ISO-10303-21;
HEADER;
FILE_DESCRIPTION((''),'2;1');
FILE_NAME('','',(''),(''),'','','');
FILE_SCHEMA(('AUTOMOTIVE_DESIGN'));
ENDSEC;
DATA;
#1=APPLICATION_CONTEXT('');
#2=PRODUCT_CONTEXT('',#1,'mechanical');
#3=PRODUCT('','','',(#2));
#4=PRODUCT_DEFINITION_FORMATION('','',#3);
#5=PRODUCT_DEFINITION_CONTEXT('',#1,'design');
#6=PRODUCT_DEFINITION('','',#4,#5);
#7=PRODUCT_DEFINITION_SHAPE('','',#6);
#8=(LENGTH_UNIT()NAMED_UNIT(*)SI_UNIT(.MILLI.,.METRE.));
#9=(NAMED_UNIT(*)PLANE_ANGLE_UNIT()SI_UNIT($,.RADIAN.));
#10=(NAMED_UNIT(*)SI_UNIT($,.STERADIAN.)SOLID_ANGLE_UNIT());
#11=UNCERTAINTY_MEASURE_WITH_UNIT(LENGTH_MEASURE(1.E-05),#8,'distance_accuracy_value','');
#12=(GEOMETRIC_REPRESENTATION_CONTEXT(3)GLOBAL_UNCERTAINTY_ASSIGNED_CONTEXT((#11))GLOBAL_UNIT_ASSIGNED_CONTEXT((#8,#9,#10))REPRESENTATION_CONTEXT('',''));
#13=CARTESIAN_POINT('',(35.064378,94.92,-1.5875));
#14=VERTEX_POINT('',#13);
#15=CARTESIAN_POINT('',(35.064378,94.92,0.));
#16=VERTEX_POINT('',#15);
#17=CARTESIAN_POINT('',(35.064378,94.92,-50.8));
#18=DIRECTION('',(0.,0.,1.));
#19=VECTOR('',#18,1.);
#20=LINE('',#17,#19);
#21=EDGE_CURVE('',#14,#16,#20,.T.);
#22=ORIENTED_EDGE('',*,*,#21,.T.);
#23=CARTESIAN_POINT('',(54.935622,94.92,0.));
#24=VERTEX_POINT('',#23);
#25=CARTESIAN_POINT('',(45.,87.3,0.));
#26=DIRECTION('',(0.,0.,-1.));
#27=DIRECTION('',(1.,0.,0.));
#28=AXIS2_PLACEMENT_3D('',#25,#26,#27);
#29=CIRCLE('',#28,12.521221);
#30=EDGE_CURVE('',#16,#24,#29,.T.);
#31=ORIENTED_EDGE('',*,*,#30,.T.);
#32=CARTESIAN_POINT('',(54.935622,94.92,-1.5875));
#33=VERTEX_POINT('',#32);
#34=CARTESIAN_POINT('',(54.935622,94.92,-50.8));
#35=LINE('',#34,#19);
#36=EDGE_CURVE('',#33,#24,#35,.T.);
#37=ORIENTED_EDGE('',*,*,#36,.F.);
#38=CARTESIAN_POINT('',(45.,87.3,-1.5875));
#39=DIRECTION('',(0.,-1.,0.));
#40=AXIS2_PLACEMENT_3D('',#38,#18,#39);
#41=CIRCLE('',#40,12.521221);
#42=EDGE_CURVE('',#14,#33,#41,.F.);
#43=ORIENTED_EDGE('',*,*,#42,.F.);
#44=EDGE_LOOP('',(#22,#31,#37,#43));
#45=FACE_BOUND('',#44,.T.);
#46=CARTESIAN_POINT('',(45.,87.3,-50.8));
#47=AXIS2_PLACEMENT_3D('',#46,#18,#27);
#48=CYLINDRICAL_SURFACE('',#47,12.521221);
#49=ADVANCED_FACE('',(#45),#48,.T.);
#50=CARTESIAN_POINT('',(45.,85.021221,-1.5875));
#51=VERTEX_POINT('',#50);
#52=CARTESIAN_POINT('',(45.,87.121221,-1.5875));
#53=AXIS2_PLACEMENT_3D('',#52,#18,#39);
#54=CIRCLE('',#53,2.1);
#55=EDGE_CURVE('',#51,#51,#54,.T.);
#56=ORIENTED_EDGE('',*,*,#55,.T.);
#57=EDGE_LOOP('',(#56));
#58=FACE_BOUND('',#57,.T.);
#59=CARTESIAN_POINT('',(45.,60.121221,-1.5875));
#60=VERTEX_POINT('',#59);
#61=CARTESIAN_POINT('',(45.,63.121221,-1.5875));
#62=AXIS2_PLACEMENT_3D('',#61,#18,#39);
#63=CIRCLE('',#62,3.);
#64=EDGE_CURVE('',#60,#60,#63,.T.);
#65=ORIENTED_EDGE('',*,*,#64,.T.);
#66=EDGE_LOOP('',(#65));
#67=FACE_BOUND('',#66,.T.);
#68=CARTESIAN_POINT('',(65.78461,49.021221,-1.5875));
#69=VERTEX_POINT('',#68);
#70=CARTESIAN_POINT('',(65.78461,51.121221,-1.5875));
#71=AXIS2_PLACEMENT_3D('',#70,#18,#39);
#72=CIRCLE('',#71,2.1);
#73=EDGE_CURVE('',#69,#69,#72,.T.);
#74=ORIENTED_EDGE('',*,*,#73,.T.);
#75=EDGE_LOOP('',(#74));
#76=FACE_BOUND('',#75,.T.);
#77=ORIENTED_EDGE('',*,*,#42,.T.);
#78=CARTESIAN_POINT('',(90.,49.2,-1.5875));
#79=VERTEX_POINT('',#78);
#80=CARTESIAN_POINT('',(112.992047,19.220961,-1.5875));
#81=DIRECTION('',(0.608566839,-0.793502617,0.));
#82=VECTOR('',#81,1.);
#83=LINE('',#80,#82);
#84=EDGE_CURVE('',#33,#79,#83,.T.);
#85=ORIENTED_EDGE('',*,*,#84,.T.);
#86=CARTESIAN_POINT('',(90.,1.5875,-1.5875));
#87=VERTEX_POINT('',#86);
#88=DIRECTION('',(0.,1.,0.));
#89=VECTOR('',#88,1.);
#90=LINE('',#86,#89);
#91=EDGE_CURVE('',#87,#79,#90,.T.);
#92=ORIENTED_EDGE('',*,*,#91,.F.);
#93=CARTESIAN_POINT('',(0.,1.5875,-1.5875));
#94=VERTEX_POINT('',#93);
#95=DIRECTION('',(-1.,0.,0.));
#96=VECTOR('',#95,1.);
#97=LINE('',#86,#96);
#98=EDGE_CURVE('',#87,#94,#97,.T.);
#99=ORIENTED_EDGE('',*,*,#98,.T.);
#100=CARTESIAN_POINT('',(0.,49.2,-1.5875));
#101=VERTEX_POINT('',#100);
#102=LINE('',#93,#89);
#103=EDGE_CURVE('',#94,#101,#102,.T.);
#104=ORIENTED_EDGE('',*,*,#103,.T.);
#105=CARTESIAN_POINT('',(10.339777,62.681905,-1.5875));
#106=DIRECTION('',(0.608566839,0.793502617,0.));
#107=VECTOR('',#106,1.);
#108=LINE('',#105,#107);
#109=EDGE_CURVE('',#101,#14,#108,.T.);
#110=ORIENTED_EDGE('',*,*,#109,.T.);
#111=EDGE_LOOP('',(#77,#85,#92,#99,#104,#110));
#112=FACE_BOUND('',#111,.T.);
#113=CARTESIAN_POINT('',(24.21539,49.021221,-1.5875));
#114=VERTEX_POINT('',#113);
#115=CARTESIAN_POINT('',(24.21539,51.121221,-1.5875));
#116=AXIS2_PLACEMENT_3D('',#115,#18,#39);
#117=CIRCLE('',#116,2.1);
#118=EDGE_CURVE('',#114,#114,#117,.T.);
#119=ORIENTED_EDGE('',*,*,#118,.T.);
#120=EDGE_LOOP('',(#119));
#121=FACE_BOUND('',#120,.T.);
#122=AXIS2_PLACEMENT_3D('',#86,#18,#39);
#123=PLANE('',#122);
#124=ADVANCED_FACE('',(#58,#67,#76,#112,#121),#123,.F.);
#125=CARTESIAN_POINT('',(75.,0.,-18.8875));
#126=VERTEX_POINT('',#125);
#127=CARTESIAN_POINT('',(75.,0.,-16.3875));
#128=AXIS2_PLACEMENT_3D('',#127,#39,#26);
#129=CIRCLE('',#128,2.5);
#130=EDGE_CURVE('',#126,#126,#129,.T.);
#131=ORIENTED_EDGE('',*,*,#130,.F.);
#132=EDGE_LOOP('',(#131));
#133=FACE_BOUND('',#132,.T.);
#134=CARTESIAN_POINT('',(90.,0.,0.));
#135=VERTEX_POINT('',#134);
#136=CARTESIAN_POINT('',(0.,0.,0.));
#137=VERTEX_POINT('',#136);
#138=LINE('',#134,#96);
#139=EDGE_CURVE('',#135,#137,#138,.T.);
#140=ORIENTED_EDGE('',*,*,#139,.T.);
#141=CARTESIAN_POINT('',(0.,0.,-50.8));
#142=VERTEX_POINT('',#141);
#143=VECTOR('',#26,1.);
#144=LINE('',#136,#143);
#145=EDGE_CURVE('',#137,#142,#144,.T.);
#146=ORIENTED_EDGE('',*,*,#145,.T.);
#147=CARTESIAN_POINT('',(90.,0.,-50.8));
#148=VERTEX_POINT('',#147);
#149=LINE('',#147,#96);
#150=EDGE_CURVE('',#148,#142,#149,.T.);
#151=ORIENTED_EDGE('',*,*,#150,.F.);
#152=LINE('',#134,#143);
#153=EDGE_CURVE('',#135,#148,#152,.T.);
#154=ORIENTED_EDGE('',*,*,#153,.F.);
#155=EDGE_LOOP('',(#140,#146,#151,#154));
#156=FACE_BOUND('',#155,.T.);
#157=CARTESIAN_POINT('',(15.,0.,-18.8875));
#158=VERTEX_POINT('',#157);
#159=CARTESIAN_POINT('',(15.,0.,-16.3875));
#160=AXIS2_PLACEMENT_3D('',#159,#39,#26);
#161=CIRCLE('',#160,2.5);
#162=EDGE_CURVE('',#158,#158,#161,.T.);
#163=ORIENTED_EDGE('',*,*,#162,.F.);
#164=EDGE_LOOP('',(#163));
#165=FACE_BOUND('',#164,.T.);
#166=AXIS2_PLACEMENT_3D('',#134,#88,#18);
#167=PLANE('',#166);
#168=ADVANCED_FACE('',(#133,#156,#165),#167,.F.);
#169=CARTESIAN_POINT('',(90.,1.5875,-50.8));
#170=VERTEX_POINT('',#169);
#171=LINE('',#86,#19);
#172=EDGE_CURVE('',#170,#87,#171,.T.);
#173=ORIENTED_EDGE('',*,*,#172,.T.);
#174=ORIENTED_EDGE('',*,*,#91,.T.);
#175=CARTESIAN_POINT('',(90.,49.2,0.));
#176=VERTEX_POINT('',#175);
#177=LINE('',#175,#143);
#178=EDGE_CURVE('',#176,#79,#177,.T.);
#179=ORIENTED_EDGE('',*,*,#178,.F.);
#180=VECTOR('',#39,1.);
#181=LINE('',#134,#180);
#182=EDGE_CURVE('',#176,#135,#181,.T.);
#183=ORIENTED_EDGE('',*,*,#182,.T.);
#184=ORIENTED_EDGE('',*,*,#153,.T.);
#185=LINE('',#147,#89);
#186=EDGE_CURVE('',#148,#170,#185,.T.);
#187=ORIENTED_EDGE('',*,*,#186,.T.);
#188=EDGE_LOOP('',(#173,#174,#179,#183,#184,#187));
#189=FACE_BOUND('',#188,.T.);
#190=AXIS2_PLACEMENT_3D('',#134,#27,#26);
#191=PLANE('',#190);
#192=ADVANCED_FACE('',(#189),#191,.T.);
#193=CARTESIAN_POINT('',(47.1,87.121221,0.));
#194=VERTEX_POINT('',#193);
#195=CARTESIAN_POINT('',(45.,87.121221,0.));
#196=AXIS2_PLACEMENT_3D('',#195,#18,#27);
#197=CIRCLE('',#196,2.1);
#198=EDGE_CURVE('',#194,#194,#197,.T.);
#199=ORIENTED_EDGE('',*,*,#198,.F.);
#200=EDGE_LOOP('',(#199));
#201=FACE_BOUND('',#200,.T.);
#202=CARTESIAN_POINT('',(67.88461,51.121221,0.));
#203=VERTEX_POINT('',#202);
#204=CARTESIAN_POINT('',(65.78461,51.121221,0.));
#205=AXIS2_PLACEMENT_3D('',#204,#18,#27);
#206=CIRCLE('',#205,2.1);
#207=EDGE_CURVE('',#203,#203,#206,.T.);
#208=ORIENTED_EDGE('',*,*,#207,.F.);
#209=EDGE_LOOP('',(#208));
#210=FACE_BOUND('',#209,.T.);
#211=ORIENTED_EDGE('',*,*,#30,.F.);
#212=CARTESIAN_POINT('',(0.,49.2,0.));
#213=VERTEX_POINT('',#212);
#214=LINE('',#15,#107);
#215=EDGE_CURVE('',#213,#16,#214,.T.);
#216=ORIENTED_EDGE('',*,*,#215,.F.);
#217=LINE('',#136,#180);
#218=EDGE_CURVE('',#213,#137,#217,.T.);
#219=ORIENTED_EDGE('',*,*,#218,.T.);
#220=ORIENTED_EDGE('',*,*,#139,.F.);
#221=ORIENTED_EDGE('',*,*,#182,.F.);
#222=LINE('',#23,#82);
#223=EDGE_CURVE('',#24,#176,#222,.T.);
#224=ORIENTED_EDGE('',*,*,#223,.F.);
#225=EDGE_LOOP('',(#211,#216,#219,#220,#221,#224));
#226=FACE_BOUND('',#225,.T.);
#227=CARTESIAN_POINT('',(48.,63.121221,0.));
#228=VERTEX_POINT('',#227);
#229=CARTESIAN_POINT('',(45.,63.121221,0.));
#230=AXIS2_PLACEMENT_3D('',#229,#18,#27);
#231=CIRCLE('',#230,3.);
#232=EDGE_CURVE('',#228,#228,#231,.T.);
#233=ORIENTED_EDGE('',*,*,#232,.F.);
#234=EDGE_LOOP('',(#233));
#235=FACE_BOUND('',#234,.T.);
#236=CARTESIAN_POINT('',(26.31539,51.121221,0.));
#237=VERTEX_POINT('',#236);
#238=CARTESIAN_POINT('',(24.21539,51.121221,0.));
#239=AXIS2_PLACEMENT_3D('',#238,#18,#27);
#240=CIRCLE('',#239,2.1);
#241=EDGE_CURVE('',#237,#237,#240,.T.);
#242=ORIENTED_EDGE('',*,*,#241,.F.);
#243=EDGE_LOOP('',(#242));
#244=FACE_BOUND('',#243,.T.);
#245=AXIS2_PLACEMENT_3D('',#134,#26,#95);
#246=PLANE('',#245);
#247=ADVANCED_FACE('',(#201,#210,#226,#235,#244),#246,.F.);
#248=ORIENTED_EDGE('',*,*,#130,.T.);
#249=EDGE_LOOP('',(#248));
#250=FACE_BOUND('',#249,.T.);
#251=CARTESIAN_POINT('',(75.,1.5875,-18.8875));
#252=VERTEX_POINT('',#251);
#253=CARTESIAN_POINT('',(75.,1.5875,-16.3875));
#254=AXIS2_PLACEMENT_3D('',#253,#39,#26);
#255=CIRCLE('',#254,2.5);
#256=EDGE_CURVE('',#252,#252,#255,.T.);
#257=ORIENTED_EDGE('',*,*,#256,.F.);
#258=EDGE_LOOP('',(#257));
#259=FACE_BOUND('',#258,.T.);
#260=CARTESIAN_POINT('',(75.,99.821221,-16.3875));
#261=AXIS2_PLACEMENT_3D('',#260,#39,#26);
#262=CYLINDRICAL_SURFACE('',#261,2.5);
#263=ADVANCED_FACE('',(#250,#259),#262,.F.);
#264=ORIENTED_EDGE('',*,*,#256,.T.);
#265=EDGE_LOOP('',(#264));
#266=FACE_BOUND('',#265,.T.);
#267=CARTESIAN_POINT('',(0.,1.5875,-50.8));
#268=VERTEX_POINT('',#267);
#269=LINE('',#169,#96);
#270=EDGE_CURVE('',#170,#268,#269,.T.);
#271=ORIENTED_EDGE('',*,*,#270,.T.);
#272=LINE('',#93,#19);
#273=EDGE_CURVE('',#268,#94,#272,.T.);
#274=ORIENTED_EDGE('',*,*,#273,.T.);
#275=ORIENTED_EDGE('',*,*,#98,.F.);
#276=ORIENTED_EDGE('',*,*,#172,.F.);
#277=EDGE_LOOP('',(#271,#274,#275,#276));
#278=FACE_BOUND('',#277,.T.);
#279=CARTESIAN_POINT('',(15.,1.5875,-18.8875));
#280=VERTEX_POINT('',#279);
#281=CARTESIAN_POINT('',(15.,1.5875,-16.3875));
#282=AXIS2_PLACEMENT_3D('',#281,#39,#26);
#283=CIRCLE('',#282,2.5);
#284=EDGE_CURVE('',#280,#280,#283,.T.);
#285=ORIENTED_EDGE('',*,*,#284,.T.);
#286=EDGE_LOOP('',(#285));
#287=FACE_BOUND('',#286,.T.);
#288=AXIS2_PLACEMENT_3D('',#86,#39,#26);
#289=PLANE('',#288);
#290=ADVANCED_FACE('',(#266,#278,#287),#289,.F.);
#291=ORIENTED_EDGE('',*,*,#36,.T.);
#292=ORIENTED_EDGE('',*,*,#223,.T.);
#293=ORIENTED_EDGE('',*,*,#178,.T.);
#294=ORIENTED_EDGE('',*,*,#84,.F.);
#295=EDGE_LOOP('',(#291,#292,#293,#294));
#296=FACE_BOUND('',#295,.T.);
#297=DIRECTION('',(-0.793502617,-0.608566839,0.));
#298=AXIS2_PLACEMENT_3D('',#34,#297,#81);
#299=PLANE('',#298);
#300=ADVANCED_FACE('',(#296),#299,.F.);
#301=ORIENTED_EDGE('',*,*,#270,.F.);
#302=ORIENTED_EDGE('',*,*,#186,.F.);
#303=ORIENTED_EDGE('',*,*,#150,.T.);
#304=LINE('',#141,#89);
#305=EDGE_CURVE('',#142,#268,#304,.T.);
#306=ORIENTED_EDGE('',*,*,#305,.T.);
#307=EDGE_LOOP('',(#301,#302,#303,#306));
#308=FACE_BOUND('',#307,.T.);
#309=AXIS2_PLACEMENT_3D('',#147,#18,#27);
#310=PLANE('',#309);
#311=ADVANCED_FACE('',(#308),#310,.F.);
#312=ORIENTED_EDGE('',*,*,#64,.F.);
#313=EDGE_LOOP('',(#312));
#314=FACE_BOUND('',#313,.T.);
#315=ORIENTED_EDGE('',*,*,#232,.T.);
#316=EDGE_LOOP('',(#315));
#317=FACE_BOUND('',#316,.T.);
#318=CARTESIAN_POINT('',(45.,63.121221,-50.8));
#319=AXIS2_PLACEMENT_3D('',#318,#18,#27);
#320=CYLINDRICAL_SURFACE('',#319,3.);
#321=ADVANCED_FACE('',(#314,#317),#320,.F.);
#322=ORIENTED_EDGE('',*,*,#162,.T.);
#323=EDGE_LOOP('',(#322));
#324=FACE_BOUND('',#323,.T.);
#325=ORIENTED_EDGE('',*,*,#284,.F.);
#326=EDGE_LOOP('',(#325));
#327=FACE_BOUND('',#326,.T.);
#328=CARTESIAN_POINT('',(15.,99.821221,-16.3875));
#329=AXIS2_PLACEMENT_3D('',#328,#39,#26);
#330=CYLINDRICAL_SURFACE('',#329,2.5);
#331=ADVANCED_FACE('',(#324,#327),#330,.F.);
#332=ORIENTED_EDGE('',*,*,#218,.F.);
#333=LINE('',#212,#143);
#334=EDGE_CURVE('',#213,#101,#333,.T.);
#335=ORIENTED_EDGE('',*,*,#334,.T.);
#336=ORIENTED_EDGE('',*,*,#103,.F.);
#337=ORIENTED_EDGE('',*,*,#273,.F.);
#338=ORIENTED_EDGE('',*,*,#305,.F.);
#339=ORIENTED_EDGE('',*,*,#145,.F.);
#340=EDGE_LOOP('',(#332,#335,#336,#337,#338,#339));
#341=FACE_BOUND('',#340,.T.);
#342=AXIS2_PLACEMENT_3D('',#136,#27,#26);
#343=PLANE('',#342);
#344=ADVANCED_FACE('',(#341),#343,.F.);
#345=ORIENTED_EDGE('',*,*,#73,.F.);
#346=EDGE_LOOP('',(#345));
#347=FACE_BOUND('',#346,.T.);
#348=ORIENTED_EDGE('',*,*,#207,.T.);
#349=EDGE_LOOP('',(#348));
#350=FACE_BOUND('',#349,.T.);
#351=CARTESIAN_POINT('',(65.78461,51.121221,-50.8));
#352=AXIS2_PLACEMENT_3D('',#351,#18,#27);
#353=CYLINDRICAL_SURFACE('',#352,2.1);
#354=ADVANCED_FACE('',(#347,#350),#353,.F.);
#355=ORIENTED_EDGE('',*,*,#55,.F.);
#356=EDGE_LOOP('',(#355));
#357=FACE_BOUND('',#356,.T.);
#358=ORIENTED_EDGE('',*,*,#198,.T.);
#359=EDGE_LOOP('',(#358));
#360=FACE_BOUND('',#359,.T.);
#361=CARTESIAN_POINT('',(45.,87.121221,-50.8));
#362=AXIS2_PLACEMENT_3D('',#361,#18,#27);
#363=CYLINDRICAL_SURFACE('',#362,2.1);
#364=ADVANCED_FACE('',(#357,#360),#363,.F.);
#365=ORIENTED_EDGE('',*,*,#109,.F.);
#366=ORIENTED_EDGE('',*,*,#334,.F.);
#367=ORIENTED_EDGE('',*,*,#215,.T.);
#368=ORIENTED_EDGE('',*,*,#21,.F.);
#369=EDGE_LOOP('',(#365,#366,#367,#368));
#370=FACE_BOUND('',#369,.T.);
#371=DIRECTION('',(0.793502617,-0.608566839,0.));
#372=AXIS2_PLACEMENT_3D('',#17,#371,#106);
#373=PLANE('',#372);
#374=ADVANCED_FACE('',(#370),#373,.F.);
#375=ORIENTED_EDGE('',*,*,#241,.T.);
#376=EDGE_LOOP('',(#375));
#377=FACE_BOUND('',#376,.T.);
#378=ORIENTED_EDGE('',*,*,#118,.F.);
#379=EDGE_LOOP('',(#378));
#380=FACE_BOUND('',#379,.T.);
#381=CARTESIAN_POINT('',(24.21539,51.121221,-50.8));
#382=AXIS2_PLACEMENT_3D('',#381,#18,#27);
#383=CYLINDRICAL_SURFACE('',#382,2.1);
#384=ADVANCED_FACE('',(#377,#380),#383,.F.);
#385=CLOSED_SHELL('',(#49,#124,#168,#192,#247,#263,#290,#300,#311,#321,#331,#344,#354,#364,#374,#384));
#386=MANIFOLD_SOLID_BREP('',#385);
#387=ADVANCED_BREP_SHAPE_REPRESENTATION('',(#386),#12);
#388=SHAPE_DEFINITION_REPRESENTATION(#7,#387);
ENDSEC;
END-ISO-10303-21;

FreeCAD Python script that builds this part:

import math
import FreeCAD as App
import Part
import Sketcher

V = App.Vector

doc = App.newDocument("Part")
body = doc.addObject("PartDesign::Body", "Body")

# Sketch on YZ plane
sketch1 = body.newObject("Sketcher::SketchObject", "Sketch")
sketch1.AttachmentSupport = (doc.getObject("YZ_Plane"), [""])
sketch1.MapMode = "FlatFace"
sketch1.addGeometry(Part.LineSegment(V(100, 0, 0), V(0, 0, 0)), False)
sketch1.addGeometry(Part.LineSegment(V(0, 0, 0), V(0, -50.8, 0)), False)
sketch1.addGeometry(Part.LineSegment(V(0, -50.8, 0), V(1.6, -50.8, 0)), False)
sketch1.addGeometry(Part.LineSegment(V(1.6, -50.8, 0), V(1.6, -1.6, 0)), False)
sketch1.addGeometry(Part.LineSegment(V(1.6, -1.6, 0), V(100, -1.6, 0)), False)
sketch1.addGeometry(Part.LineSegment(V(100, -1.6, 0), V(100, 0, 0)), False)
sketch1.addConstraint(Sketcher.Constraint("Coincident", 0, 2, 1, 1))
sketch1.addConstraint(Sketcher.Constraint("Coincident", 1, 2, 2, 1))
sketch1.addConstraint(Sketcher.Constraint("Coincident", 2, 2, 3, 1))
sketch1.addConstraint(Sketcher.Constraint("Coincident", 3, 2, 4, 1))
sketch1.addConstraint(Sketcher.Constraint("Coincident", 4, 2, 5, 1))
sketch1.addConstraint(Sketcher.Constraint("Coincident", 5, 2, 0, 1))
sketch1.addConstraint(Sketcher.Constraint("Horizontal", 0))
sketch1.addConstraint(Sketcher.Constraint("Vertical", 1))
sketch1.addConstraint(Sketcher.Constraint("Horizontal", 2))
sketch1.addConstraint(Sketcher.Constraint("Vertical", 3))
sketch1.addConstraint(Sketcher.Constraint("Horizontal", 4))
sketch1.addConstraint(Sketcher.Constraint("Vertical", 5))
sketch1.addConstraint(Sketcher.Constraint("Coincident", 0, 2, -1, 1))
sketch1.addConstraint(Sketcher.Constraint("Equal", 2, 5))
sketch1.addConstraint(Sketcher.Constraint("DistanceX", 0, 2, 0, 1, 100.0))
sketch1.addConstraint(Sketcher.Constraint("DistanceY", 1, 2, 1, 1, 50.8))
sketch1.addConstraint(Sketcher.Constraint("DistanceX", 2, 1, 2, 2, 1.5875))
pad1 = body.newObject("PartDesign::Pad", "Pad")
pad1.Profile = sketch1
pad1.Length = 90

# Sketch on XY plane
sketch2 = body.newObject("Sketcher::SketchObject", "Sketch001")
sketch2.AttachmentSupport = (doc.getObject("XY_Plane"), [""])
sketch2.MapMode = "FlatFace"
sketch2.addGeometry(Part.LineSegment(V(0, 49, 0), V(35, 95, 0)), False)
sketch2.addGeometry(Part.ArcOfCircle(Part.Circle(V(45, 87, 0), V(0, 0, 1), 13), math.radians(37), math.radians(143)), False)
sketch2.addGeometry(Part.LineSegment(V(55, 95, 0), V(90, 49, 0)), False)
sketch2.addGeometry(Part.LineSegment(V(90, 49, 0), V(90, 100, 0)), False)
sketch2.addGeometry(Part.LineSegment(V(90, 100, 0), V(0, 100, 0)), False)
sketch2.addGeometry(Part.LineSegment(V(0, 100, 0), V(0, 49, 0)), False)
sketch2.addConstraint(Sketcher.Constraint("Tangent", 0, 2, 1, 2))
sketch2.addConstraint(Sketcher.Constraint("Tangent", 1, 1, 2, 1))
sketch2.addConstraint(Sketcher.Constraint("Coincident", 2, 2, 3, 1))
sketch2.addConstraint(Sketcher.Constraint("Coincident", 3, 2, 4, 1))
sketch2.addConstraint(Sketcher.Constraint("Coincident", 4, 2, 5, 1))
sketch2.addConstraint(Sketcher.Constraint("Coincident", 5, 2, 0, 1))
sketch2.addConstraint(Sketcher.Constraint("Vertical", 3))
sketch2.addConstraint(Sketcher.Constraint("Horizontal", 4))
sketch2.addConstraint(Sketcher.Constraint("Vertical", 5))
sketch2.addConstraint(Sketcher.Constraint("PointOnObject", 4, 2, -2))
sketch2.addConstraint(Sketcher.Constraint("Horizontal", 0, 2, 1, 1))
sketch2.addConstraint(Sketcher.Constraint("Horizontal", 2, 2, 5, 2))
sketch2.addConstraint(Sketcher.Constraint("DistanceX", 4, 2, 4, 1, 90.0))
sketch2.addConstraint(Sketcher.Constraint("DistanceY", 3, 1, 3, 2, 50.8))
sketch2.addConstraint(Sketcher.Constraint("DistanceY", -1, 1, 3, 2, 100.0))
sketch2.addConstraint(Sketcher.Constraint("DistanceY", -1, 1, 1, 3, 87.3))
sketch2.addConstraint(Sketcher.Constraint("DistanceY", -1, 1, 0, 2, 94.92))
pocket1 = body.newObject("PartDesign::Pocket", "Pocket")
pocket1.Profile = sketch2
pocket1.Type = "ThroughAll"

# Sketch on XY plane
sketch3 = body.newObject("Sketcher::SketchObject", "Sketch002")
sketch3.AttachmentSupport = (doc.getObject("XY_Plane"), [""])
sketch3.MapMode = "FlatFace"
sketch3.addGeometry(Part.Circle(V(45, 87.1, 0), V(0, 0, 1), 2.1), False)
sketch3.addGeometry(Part.Circle(V(65.8, 51.1, 0), V(0, 0, 1), 2.1), False)
sketch3.addGeometry(Part.Circle(V(24.2, 51.1, 0), V(0, 0, 1), 2.1), False)
sketch3.addGeometry(Part.Circle(V(45, 63.1, 0), V(0, 0, 1), 3), False)
sketch3.addConstraint(Sketcher.Constraint("Equal", 0, 1))
sketch3.addConstraint(Sketcher.Constraint("Equal", 1, 2))
sketch3.addConstraint(Sketcher.Constraint("Horizontal", 1, 3, 2, 3))
sketch3.addConstraint(Sketcher.Constraint("Vertical", 0, 3, 3, 3))
sketch3.addConstraint(Sketcher.Constraint("Diameter", 3, 6.0))
sketch3.addConstraint(Sketcher.Constraint("Diameter", 0, 4.2))
sketch3.addConstraint(Sketcher.Constraint("DistanceX", -1, 1, 0, 3, 45.0))
sketch3.addConstraint(Sketcher.Constraint("DistanceY", 1, 3, 0, 3, 36.0))
sketch3.addConstraint(Sketcher.Constraint("DistanceY", 3, 3, 0, 3, 24.0))
sketch3.addConstraint(Sketcher.Constraint("DistanceY", -1, 1, 0, 3, 87.121221))
sketch3.addConstraint(Sketcher.Constraint("DistanceX", -1, 1, 1, 3, 65.78461))
sketch3.addConstraint(Sketcher.Constraint("DistanceX", -1, 1, 2, 3, 24.21539))
pocket2 = body.newObject("PartDesign::Pocket", "Pocket001")
pocket2.Profile = sketch3
pocket2.Type = "ThroughAll"

# Sketch on XZ plane
sketch4 = body.newObject("Sketcher::SketchObject", "Sketch003")
sketch4.AttachmentSupport = (doc.getObject("XZ_Plane"), [""])
sketch4.MapMode = "FlatFace"
sketch4.addGeometry(Part.Circle(V(15, -16.4, 0), V(0, 0, 1), 2.5), False)
sketch4.addGeometry(Part.Circle(V(75, -16.4, 0), V(0, 0, 1), 2.5), False)
sketch4.addConstraint(Sketcher.Constraint("Equal", 0, 1))
sketch4.addConstraint(Sketcher.Constraint("Horizontal", 0, 3, 1, 3))
sketch4.addConstraint(Sketcher.Constraint("Diameter", 0, 5.0))
sketch4.addConstraint(Sketcher.Constraint("DistanceX", -1, 1, 0, 3, 15.0))
sketch4.addConstraint(Sketcher.Constraint("DistanceX", -1, 1, 1, 3, 75.0))
sketch4.addConstraint(Sketcher.Constraint("DistanceY", 0, 3, -1, 1, 16.3875))
pocket3 = body.newObject("PartDesign::Pocket", "Pocket002")
pocket3.Profile = sketch4
pocket3.Type = "ThroughAll"

doc.recompute()
